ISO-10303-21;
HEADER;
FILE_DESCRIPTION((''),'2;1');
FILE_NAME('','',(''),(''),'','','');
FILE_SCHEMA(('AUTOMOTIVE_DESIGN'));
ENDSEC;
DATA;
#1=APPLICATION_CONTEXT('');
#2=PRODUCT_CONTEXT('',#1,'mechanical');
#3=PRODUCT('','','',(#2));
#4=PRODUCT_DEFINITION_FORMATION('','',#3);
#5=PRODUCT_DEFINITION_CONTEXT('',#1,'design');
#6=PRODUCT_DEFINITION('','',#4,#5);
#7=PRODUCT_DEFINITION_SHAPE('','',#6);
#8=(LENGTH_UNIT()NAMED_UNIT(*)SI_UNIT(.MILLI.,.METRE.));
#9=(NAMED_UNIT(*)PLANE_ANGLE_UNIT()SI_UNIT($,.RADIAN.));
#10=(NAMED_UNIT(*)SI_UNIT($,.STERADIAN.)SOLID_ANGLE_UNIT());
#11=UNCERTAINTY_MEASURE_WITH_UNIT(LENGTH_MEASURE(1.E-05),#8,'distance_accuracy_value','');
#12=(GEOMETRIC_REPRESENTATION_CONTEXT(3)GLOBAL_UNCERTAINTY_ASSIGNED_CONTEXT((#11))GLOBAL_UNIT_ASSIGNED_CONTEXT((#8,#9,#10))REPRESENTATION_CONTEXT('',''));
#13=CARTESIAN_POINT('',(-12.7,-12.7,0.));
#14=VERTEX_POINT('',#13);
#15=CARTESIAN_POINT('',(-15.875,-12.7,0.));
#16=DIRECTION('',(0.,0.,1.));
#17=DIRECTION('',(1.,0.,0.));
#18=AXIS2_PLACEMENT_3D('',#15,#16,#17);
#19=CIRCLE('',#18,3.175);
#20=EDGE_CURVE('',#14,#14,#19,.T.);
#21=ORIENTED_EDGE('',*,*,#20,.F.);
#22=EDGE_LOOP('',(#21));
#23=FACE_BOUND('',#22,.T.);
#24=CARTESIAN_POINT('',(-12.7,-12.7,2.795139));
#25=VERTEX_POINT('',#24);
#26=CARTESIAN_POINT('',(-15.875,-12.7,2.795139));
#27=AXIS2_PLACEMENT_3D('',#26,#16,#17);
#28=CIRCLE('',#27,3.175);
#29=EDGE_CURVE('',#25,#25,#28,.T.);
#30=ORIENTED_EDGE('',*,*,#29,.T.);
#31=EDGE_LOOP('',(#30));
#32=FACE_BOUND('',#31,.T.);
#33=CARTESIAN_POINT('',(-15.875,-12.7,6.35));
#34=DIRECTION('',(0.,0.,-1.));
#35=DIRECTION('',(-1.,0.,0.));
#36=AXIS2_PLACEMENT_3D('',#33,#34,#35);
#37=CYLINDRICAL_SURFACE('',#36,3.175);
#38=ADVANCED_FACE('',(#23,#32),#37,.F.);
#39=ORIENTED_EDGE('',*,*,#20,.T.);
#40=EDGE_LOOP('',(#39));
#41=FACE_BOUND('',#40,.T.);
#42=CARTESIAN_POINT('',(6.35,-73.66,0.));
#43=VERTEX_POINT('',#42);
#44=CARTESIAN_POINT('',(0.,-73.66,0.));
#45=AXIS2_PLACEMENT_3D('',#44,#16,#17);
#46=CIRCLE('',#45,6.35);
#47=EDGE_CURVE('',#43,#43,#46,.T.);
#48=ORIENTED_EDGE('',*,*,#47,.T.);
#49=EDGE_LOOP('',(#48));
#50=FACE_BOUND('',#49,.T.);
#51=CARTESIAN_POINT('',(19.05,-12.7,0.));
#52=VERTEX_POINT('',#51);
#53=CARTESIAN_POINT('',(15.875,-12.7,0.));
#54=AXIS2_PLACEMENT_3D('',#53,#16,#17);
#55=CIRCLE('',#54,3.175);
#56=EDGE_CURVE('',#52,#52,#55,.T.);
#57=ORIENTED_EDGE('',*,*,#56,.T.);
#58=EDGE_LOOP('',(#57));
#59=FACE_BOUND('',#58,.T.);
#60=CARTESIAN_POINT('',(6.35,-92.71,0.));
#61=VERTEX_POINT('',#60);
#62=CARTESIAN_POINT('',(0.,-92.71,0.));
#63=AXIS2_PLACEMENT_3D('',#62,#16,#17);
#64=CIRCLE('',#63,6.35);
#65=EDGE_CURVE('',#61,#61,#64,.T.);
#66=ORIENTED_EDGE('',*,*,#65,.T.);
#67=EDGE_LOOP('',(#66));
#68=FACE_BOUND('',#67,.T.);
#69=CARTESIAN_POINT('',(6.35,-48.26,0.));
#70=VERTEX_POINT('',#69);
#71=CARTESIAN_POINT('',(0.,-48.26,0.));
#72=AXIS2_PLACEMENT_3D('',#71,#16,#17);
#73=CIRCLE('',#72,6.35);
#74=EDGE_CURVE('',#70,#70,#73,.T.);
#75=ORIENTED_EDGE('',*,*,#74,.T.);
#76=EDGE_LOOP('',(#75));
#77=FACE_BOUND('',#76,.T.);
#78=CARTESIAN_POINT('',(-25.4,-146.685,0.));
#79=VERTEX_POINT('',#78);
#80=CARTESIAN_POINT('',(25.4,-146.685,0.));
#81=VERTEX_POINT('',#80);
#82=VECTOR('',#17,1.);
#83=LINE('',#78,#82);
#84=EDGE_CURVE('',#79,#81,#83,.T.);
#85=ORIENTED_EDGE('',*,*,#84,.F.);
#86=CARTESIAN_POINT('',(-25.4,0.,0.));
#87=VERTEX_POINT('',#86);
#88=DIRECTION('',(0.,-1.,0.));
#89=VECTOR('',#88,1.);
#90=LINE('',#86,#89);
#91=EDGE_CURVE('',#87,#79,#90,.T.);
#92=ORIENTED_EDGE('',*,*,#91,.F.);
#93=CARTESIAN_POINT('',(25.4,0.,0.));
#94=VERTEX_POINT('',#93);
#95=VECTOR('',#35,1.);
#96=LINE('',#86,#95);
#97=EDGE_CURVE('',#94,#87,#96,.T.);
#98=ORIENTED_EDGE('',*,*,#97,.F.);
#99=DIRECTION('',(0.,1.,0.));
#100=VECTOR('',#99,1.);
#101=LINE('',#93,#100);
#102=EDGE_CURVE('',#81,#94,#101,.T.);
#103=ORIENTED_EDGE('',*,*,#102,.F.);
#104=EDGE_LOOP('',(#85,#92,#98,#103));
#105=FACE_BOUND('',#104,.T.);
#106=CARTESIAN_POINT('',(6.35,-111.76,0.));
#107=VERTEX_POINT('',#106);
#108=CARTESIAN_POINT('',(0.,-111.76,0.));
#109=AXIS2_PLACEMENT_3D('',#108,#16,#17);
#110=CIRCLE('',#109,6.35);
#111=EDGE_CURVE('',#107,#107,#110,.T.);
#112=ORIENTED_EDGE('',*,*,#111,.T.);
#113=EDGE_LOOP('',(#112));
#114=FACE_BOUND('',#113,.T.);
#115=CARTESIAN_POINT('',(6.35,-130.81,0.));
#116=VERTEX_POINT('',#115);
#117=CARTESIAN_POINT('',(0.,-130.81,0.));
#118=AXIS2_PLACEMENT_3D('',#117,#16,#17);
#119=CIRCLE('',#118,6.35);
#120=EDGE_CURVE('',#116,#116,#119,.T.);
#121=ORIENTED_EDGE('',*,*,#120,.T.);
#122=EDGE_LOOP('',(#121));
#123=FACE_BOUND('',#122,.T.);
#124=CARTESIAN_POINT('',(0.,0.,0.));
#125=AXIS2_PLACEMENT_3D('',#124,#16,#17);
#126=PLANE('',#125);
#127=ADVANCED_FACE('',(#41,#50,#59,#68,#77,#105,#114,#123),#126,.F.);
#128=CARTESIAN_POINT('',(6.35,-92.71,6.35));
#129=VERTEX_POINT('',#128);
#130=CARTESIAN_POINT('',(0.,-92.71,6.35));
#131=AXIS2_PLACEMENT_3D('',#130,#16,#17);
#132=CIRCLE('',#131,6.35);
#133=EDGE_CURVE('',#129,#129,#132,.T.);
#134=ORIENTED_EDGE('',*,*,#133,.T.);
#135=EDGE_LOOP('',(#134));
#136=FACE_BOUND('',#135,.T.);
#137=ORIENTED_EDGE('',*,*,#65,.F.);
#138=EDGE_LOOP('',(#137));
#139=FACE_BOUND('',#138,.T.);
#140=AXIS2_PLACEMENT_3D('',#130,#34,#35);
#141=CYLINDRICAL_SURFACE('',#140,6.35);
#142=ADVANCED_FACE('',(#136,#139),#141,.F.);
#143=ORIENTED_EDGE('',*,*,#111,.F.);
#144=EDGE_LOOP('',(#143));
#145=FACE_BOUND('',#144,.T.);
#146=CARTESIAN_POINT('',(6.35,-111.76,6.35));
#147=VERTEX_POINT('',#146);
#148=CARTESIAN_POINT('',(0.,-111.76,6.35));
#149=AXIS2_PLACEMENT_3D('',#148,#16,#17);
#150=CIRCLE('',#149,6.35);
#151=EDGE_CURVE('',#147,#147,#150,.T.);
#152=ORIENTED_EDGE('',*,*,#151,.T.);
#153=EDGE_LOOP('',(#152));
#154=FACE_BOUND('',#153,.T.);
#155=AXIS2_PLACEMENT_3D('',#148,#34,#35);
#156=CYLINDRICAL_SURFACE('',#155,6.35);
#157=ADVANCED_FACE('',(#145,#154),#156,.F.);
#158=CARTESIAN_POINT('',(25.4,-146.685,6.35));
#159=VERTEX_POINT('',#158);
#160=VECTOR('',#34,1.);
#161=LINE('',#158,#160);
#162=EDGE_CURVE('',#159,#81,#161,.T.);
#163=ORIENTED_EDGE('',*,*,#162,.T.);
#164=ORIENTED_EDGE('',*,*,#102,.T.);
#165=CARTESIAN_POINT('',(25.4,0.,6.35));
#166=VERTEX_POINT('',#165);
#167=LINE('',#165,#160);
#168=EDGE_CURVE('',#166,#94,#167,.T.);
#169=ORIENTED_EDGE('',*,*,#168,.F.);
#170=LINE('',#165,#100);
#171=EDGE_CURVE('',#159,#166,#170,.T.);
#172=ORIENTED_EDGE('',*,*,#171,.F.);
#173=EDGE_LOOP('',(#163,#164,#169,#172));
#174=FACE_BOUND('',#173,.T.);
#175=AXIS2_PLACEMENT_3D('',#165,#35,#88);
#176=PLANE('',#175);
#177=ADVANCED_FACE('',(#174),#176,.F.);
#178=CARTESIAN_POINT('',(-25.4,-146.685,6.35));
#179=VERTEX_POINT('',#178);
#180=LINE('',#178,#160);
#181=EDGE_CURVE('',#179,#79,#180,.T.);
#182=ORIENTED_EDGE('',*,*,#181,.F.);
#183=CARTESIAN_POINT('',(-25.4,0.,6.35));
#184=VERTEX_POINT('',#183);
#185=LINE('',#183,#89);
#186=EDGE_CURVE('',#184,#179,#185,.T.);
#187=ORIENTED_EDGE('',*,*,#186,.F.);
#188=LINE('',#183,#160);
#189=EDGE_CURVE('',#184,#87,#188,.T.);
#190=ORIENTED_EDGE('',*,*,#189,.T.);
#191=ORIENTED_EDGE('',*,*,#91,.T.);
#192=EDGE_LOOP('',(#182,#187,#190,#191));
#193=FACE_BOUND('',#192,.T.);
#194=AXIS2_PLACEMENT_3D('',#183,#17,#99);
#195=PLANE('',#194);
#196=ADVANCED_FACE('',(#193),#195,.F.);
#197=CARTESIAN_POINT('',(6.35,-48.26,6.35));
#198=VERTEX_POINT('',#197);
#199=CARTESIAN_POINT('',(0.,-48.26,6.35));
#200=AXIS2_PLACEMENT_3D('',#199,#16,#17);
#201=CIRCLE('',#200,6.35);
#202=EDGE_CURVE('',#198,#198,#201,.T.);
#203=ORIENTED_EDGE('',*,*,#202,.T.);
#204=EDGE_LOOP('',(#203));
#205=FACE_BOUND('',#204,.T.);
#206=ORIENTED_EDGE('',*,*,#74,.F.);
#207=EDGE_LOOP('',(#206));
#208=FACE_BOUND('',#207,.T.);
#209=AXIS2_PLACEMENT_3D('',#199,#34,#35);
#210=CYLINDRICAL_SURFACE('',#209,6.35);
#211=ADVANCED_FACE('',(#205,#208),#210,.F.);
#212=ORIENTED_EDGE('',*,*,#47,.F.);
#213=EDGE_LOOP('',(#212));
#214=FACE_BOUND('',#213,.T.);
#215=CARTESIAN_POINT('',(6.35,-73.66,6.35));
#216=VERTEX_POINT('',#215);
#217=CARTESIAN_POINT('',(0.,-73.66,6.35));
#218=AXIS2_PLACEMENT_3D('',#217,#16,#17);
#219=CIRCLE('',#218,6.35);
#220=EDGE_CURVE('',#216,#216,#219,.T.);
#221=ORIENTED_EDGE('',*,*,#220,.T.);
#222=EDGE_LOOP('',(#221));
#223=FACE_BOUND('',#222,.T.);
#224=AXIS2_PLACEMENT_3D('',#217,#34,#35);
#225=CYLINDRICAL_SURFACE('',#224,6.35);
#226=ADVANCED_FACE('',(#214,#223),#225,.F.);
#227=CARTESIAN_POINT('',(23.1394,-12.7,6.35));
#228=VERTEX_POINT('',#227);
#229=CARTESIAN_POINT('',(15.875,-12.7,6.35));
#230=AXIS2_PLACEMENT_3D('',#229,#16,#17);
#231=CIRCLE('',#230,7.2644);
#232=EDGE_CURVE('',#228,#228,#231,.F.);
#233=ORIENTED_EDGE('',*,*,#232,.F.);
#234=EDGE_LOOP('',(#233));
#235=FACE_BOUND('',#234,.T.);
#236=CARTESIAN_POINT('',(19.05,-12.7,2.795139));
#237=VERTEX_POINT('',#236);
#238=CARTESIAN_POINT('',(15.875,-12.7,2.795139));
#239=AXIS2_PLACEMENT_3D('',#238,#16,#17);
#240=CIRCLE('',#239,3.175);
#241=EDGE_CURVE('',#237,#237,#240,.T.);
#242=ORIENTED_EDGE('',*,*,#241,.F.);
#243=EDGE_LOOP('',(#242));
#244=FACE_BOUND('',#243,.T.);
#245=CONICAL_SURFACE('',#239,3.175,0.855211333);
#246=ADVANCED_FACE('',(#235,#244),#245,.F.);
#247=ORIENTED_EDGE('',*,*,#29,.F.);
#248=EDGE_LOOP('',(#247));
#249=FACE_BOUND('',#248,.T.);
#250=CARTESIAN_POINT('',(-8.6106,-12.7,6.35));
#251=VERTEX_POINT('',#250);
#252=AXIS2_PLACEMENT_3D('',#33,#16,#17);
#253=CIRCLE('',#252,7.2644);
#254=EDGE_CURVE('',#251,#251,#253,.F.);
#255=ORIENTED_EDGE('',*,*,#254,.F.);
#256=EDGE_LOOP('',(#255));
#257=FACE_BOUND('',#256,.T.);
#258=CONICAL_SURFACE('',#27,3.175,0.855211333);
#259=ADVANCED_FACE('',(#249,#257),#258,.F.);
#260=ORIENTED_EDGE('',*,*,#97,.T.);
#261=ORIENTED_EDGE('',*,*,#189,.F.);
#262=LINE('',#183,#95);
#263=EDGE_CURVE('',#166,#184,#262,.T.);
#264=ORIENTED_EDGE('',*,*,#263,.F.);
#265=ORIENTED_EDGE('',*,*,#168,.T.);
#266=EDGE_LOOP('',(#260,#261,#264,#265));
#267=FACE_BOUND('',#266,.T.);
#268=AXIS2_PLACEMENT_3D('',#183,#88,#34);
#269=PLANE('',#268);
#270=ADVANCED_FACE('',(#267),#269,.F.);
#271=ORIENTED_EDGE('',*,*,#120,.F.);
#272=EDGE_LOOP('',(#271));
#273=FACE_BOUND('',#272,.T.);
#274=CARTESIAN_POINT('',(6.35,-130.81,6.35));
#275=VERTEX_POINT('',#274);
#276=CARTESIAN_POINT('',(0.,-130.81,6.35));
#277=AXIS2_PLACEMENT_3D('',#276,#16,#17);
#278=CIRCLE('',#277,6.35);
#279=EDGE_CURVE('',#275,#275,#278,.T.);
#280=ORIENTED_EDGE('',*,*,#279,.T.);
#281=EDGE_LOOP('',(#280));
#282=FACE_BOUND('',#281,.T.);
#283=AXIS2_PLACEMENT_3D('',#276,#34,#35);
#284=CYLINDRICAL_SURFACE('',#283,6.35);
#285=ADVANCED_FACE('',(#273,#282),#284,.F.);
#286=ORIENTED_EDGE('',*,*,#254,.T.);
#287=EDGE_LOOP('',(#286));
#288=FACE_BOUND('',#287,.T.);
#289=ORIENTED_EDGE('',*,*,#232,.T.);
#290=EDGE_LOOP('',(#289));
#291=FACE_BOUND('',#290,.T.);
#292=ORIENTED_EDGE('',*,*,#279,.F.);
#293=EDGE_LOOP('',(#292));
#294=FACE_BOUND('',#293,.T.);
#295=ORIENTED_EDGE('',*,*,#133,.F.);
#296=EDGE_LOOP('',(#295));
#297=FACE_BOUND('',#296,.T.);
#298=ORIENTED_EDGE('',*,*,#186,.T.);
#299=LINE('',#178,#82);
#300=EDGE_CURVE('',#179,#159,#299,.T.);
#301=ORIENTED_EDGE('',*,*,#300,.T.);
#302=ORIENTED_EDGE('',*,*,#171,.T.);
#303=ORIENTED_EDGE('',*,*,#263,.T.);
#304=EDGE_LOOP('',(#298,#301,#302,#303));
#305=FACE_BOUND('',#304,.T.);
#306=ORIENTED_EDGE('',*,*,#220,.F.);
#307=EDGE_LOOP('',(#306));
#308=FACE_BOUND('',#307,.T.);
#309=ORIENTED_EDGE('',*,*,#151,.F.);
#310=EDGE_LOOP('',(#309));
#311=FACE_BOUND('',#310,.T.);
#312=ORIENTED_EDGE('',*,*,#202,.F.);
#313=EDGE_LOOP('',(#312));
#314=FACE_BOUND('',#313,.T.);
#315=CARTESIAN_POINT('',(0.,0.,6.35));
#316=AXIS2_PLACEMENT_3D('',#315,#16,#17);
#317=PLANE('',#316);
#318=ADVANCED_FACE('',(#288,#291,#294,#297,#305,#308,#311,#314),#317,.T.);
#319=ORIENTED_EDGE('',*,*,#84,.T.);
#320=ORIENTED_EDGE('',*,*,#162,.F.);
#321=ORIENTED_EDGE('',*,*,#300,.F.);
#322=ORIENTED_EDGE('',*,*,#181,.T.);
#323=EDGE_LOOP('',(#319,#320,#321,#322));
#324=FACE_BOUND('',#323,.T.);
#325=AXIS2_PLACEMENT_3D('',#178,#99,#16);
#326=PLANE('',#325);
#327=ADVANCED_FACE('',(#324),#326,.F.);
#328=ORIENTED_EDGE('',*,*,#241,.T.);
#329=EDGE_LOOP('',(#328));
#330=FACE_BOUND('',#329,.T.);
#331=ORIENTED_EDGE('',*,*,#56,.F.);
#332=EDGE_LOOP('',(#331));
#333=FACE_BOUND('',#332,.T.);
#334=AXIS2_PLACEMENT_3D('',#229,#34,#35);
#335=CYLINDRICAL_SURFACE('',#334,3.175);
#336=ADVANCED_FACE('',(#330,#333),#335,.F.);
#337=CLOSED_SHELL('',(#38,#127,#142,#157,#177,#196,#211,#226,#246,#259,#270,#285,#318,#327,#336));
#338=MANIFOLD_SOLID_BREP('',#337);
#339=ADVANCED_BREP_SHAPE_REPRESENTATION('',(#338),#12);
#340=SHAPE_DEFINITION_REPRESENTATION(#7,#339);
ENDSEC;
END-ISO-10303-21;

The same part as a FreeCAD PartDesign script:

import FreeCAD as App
import Part
import Sketcher
Q = App.Units.Quantity


def edges_at(feature, points):
    """Names of the edges that pass closest to the given points."""
    edges = feature.Shape.Edges
    near = lambda p: min(range(len(edges)), key=lambda i: edges[i].distToShape(Part.Vertex(*p))[0])
    return sorted({f"Edge{near(p) + 1}" for p in points})


def add_polygon(sketch, points):
    """Adds a closed chain of lines whose ends are joined by coincident constraints."""
    first, n = sketch.GeometryCount, len(points)
    for a, b in zip(points, points[1:] + points[:1]):
        sketch.addGeometry(Part.LineSegment(App.Vector(*a, 0), App.Vector(*b, 0)), False)
    for i in range(n):
        sketch.addConstraint(Sketcher.Constraint("Coincident", first + i, 2, first + (i + 1) % n, 1))

doc = App.newDocument("Part")
params = doc.addObject("Spreadsheet::Sheet", "Params")
for row, (alias, value) in enumerate([
    ("sketch1_diameter", "0.5 in"),
    ("sketch1_diameter2", "0.25 in"),
    ("sketch1_width", "2 in"),
    ("sketch1_height", "5.775 in"),
    ("pad1_length", "0.25 in"),
    ("chamfer_size", "0.161 in"),
    ("chamfer_size2", "3.554861 mm"),
    ("chamfer2_size", "0.161 in"),
    ("chamfer2_size2", "3.554861 mm"),
], start=1):
    params.set(f"A{row}", alias)
    params.set(f"B{row}", "=" + value)
    params.setAlias(f"B{row}", alias)

body = doc.addObject("PartDesign::Body", "Body")

# Sketch on XY plane
sketch1 = body.newObject("Sketcher::SketchObject", "Sketch")
sketch1.AttachmentSupport = (doc.getObject("XY_Plane"), [""])
sketch1.MapMode = "FlatFace"
add_polygon(sketch1, [(-25.4, 0), (-25.4, -146.685), (25.4, -146.685), (25.4, 0)])  # lines 0-3
sketch1.addGeometry(Part.Circle(App.Vector(0, -130.81, 0), App.Vector(0, 0, 1), 6.35), False)  # 4
sketch1.addGeometry(Part.Circle(App.Vector(0, -111.76, 0), App.Vector(0, 0, 1), 6.35), False)  # 5
sketch1.addGeometry(Part.Circle(App.Vector(0, -92.71, 0), App.Vector(0, 0, 1), 6.35), False)  # 6
sketch1.addGeometry(Part.Circle(App.Vector(0, -73.66, 0), App.Vector(0, 0, 1), 6.35), False)  # 7
sketch1.addGeometry(Part.Circle(App.Vector(-15.875, -12.7, 0), App.Vector(0, 0, 1), 3.175), False)  # 8
sketch1.addGeometry(Part.Circle(App.Vector(0, -48.26, 0), App.Vector(0, 0, 1), 6.35), False)  # 9
sketch1.addGeometry(Part.Circle(App.Vector(15.875, -12.7, 0), App.Vector(0, 0, 1), 3.175), False)  # 10
sketch1.addConstraint([
    Sketcher.Constraint("Vertical", 0),
    Sketcher.Constraint("Horizontal", 1),
    Sketcher.Constraint("Vertical", 2),
    Sketcher.Constraint("Horizontal", 3),
    Sketcher.Constraint("Equal", 4, 5),
    Sketcher.Constraint("Equal", 5, 6),
    Sketcher.Constraint("Equal", 6, 7),
    Sketcher.Constraint("Equal", 7, 9),
    Sketcher.Constraint("Equal", 8, 10),
    Sketcher.Constraint("Symmetric", 2, 2, 3, 2, -1, 1),
    Sketcher.Constraint("Symmetric", 8, 3, 10, 3, -2),
    Sketcher.Constraint("PointOnObject", 4, 3, -2),
    Sketcher.Constraint("PointOnObject", 5, 3, -2),
    Sketcher.Constraint("PointOnObject", 6, 3, -2),
    Sketcher.Constraint("PointOnObject", 7, 3, -2),
    Sketcher.Constraint("PointOnObject", 9, 3, -2),
    Sketcher.Constraint("Diameter", 4, Q("0.5 in")),
    Sketcher.Constraint("Diameter", 8, Q("0.25 in")),
    Sketcher.Constraint("DistanceX", 1, 1, 1, 2, Q("2 in")),
    Sketcher.Constraint("DistanceY", 7, 3, 9, 3, Q("1 in")),
    Sketcher.Constraint("DistanceY", 5, 3, -1, 1, Q("4.4 in")),
    Sketcher.Constraint("DistanceY", 7, 3, -1, 1, Q("2.9 in")),
    Sketcher.Constraint("DistanceY", 8, 3, -1, 1, Q("0.5 in")),
    Sketcher.Constraint("DistanceY", 4, 3, 6, 3, Q("1.5 in")),
    Sketcher.Constraint("DistanceY", 0, 2, 0, 1, Q("5.775 in")),
    Sketcher.Constraint("DistanceY", 4, 3, -1, 1, Q("5.15 in")),
    Sketcher.Constraint("DistanceX", 8, 3, 10, 3, Q("1.25 in")),
])
sketch1.setExpression("Constraints[20]", "Params.sketch1_diameter")
sketch1.setExpression("Constraints[21]", "Params.sketch1_diameter2")
sketch1.setExpression("Constraints[22]", "Params.sketch1_width")
sketch1.setExpression("Constraints[28]", "Params.sketch1_height")
pad1 = body.newObject("PartDesign::Pad", "Pad")
pad1.Profile = sketch1
pad1.setExpression("Length", "Params.pad1_length")
doc.recompute()

chamfer = body.newObject("PartDesign::Chamfer", "Chamfer")
chamfer.Base = (pad1, edges_at(pad1, [(-19.05, -12.7, 6.35)]))
chamfer.ChamferType = "Two distances"
chamfer.setExpression("Size", "Params.chamfer_size")
chamfer.setExpression("Size2", "Params.chamfer_size2")
chamfer.FlipDirection = True
doc.recompute()

chamfer2 = body.newObject("PartDesign::Chamfer", "Chamfer001")
chamfer2.Base = (chamfer, edges_at(chamfer, [(12.7, -12.7, 6.35)]))
chamfer2.ChamferType = "Two distances"
chamfer2.setExpression("Size", "Params.chamfer2_size")
chamfer2.setExpression("Size2", "Params.chamfer2_size2")

doc.recompute()
